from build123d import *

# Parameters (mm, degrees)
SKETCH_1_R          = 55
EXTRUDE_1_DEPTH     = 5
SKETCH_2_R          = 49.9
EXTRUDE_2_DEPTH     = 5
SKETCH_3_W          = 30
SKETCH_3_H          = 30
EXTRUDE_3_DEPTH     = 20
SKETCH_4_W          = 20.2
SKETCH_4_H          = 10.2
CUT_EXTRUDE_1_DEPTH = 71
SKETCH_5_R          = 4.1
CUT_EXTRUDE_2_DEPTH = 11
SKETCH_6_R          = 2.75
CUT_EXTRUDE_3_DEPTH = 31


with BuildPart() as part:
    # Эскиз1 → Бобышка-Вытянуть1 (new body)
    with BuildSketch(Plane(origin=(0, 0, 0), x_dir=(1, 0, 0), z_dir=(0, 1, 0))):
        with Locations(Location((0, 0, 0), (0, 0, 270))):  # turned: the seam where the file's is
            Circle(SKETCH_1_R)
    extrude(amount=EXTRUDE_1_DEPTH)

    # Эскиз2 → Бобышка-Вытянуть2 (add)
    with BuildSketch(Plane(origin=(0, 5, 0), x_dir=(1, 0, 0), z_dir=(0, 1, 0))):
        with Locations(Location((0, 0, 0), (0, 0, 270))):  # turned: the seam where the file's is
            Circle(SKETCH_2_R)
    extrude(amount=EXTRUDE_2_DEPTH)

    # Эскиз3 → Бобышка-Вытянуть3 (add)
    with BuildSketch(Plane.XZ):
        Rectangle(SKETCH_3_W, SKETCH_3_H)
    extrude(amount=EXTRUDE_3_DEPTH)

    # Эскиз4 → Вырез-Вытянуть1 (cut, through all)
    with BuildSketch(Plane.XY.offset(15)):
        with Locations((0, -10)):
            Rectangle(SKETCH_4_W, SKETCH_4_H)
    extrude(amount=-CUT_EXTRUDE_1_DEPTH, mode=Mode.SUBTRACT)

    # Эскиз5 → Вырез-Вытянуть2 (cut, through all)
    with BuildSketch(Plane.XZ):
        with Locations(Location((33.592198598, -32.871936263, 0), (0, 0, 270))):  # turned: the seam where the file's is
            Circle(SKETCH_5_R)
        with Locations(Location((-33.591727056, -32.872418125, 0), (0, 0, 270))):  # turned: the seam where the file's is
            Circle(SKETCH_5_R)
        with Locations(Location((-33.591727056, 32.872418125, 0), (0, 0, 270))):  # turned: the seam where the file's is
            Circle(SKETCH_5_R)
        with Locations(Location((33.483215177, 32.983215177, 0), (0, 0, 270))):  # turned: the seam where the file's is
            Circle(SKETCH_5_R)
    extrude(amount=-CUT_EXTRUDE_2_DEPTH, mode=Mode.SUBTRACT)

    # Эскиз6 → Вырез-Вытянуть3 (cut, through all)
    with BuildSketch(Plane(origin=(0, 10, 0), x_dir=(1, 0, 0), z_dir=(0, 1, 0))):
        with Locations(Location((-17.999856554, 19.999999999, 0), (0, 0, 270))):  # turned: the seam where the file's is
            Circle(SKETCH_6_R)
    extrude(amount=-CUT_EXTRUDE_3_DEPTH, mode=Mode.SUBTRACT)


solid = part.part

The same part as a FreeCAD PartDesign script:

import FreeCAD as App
import Part
import Sketcher

doc = App.newDocument("Part")
body = doc.addObject("PartDesign::Body", "Body")

# Sketch on XZ plane
sketch1 = body.newObject("Sketcher::SketchObject", "Sketch")
sketch1.AttachmentSupport = (doc.getObject("XZ_Plane"), [""])
sketch1.MapMode = "FlatFace"
sketch1.addGeometry(Part.Circle(App.Vector(0, 0, 0), App.Vector(0, 0, 1), 55), False)
sketch1.addConstraint(Sketcher.Constraint("Coincident", 0, 3, -1, 1))
sketch1.addConstraint(Sketcher.Constraint("Diameter", 0, 110.0))
pad1 = body.newObject("PartDesign::Pad", "Pad")
pad1.Profile = sketch1
pad1.Length = 5
pad1.Reversed = True

# Sketch on XZ plane
sketch2 = body.newObject("Sketcher::SketchObject", "Sketch001")
sketch2.AttachmentSupport = (doc.getObject("XZ_Plane"), [""])
sketch2.MapMode = "FlatFace"
sketch2.AttachmentOffset = App.Placement(App.Vector(0, 0, -5), App.Rotation())
sketch2.addGeometry(Part.Circle(App.Vector(0, 0, 0), App.Vector(0, 0, 1), 50), False)
sketch2.addConstraint(Sketcher.Constraint("Coincident", 0, 3, -1, 1))
sketch2.addConstraint(Sketcher.Constraint("Diameter", 0, 99.8))
pad2 = body.newObject("PartDesign::Pad", "Pad001")
pad2.Profile = sketch2
pad2.Length = 5
pad2.Reversed = True

# Sketch on XZ plane
sketch3 = body.newObject("Sketcher::SketchObject", "Sketch002")
sketch3.AttachmentSupport = (doc.getObject("XZ_Plane"), [""])
sketch3.MapMode = "FlatFace"
sketch3.addGeometry(Part.LineSegment(App.Vector(-15, 15, 0), App.Vector(-15, -15, 0)), False)
sketch3.addGeometry(Part.LineSegment(App.Vector(-15, -15, 0), App.Vector(15, -15, 0)), False)
sketch3.addGeometry(Part.LineSegment(App.Vector(15, -15, 0), App.Vector(15, 15, 0)), False)
sketch3.addGeometry(Part.LineSegment(App.Vector(15, 15, 0), App.Vector(-15, 15, 0)), False)
sketch3.addConstraint(Sketcher.Constraint("Coincident", 0, 2, 1, 1))
sketch3.addConstraint(Sketcher.Constraint("Coincident", 1, 2, 2, 1))
sketch3.addConstraint(Sketcher.Constraint("Coincident", 2, 2, 3, 1))
sketch3.addConstraint(Sketcher.Constraint("Coincident", 3, 2, 0, 1))
sketch3.addConstraint(Sketcher.Constraint("Vertical", 0))
sketch3.addConstraint(Sketcher.Constraint("Horizontal", 1))
sketch3.addConstraint(Sketcher.Constraint("Vertical", 2))
sketch3.addConstraint(Sketcher.Constraint("Horizontal", 3))
sketch3.addConstraint(Sketcher.Constraint("Symmetric", 0, 2, 2, 2, -1, 1))
sketch3.addConstraint(Sketcher.Constraint("Equal", 3, 0))
sketch3.addConstraint(Sketcher.Constraint("DistanceX", 1, 1, 1, 2, 30.0))
pad3 = body.newObject("PartDesign::Pad", "Pad002")
pad3.Profile = sketch3
pad3.Length = 20

# Sketch on XY plane
sketch4 = body.newObject("Sketcher::SketchObject", "Sketch003")
sketch4.AttachmentSupport = (doc.getObject("XY_Plane"), [""])
sketch4.MapMode = "FlatFace"
sketch4.AttachmentOffset = App.Placement(App.Vector(0, 0, 15), App.Rotation())
sketch4.addGeometry(Part.LineSegment(App.Vector(-10, -5, 0), App.Vector(-10, -15, 0)), False)
sketch4.addGeometry(Part.LineSegment(App.Vector(-10, -15, 0), App.Vector(10, -15, 0)), False)
sketch4.addGeometry(Part.LineSegment(App.Vector(10, -15, 0), App.Vector(10, -5, 0)), False)
sketch4.addGeometry(Part.LineSegment(App.Vector(10, -5, 0), App.Vector(-10, -5, 0)), False)
sketch4.addConstraint(Sketcher.Constraint("Coincident", 0, 2, 1, 1))
sketch4.addConstraint(Sketcher.Constraint("Coincident", 1, 2, 2, 1))
sketch4.addConstraint(Sketcher.Constraint("Coincident", 2, 2, 3, 1))
sketch4.addConstraint(Sketcher.Constraint("Coincident", 3, 2, 0, 1))
sketch4.addConstraint(Sketcher.Constraint("Vertical", 0))
sketch4.addConstraint(Sketcher.Constraint("Horizontal", 1))
sketch4.addConstraint(Sketcher.Constraint("Vertical", 2))
sketch4.addConstraint(Sketcher.Constraint("Horizontal", 3))
sketch4.addConstraint(Sketcher.Constraint("DistanceX", 1, 1, 1, 2, 20.2))
sketch4.addConstraint(Sketcher.Constraint("DistanceY", 0, 2, 0, 1, 10.2))
sketch4.addConstraint(Sketcher.Constraint("DistanceX", 0, 2, -1, 1, 10.1))
sketch4.addConstraint(Sketcher.Constraint("DistanceY", 0, 2, -1, 1, 15.1))
pocket1 = body.newObject("PartDesign::Pocket", "Pocket")
pocket1.Profile = sketch4
pocket1.Type = "ThroughAll"

# Sketch on XZ plane
sketch5 = body.newObject("Sketcher::SketchObject", "Sketch004")
sketch5.AttachmentSupport = (doc.getObject("XZ_Plane"), [""])
sketch5.MapMode = "FlatFace"
sketch5.addGeometry(Part.Circle(App.Vector(33.6, -32.9, 0), App.Vector(0, 0, 1), 4.1), False)
sketch5.addGeometry(Part.Circle(App.Vector(-33.6, -32.9, 0), App.Vector(0, 0, 1), 4.1), False)
sketch5.addGeometry(Part.Circle(App.Vector(-33.6, 32.9, 0), App.Vector(0, 0, 1), 4.1), False)
sketch5.addGeometry(Part.Circle(App.Vector(33.5, 33, 0), App.Vector(0, 0, 1), 4.1), False)
sketch5.addConstraint(Sketcher.Constraint("Equal", 0, 1))
sketch5.addConstraint(Sketcher.Constraint("Equal", 1, 2))
sketch5.addConstraint(Sketcher.Constraint("Equal", 2, 3))
sketch5.addConstraint(Sketcher.Constraint("Symmetric", 1, 3, 2, 3, -1))
sketch5.addConstraint(Sketcher.Constraint("Diameter", 0, 8.2))
sketch5.addConstraint(Sketcher.Constraint("DistanceX", -1, 1, 0, 3, 33.592199))
sketch5.addConstraint(Sketcher.Constraint("DistanceY", 1, 3, -1, 1, 32.872418))
sketch5.addConstraint(Sketcher.Constraint("DistanceY", 1, 3, 0, 3, 0.000482))
sketch5.addConstraint(Sketcher.Constraint("DistanceY", 0, 3, 3, 3, 65.855151))
sketch5.addConstraint(Sketcher.Constraint("DistanceX", 1, 3, -1, 1, 33.591727))
sketch5.addConstraint(Sketcher.Constraint("DistanceX", -1, 1, 3, 3, 33.483215))
pocket2 = body.newObject("PartDesign::Pocket", "Pocket001")
pocket2.Profile = sketch5
pocket2.Type = "ThroughAll"

# Sketch on XZ plane
sketch6 = body.newObject("Sketcher::SketchObject", "Sketch005")
sketch6.AttachmentSupport = (doc.getObject("XZ_Plane"), [""])
sketch6.MapMode = "FlatFace"
sketch6.AttachmentOffset = App.Placement(App.Vector(0, 0, -10), App.Rotation())
sketch6.addGeometry(Part.Circle(App.Vector(-18, -20, 0), App.Vector(0, 0, 1), 2.8), False)
sketch6.addConstraint(Sketcher.Constraint("Diameter", 0, 5.5))
sketch6.addConstraint(Sketcher.Constraint("DistanceY", 0, 3, -1, 1, 20.0))
sketch6.addConstraint(Sketcher.Constraint("DistanceX", 0, 3, -1, 1, 17.999857))
pocket3 = body.newObject("PartDesign::Pocket", "Pocket002")
pocket3.Profile = sketch6
pocket3.Type = "ThroughAll"
pocket3.Reversed = True

doc.recompute()
